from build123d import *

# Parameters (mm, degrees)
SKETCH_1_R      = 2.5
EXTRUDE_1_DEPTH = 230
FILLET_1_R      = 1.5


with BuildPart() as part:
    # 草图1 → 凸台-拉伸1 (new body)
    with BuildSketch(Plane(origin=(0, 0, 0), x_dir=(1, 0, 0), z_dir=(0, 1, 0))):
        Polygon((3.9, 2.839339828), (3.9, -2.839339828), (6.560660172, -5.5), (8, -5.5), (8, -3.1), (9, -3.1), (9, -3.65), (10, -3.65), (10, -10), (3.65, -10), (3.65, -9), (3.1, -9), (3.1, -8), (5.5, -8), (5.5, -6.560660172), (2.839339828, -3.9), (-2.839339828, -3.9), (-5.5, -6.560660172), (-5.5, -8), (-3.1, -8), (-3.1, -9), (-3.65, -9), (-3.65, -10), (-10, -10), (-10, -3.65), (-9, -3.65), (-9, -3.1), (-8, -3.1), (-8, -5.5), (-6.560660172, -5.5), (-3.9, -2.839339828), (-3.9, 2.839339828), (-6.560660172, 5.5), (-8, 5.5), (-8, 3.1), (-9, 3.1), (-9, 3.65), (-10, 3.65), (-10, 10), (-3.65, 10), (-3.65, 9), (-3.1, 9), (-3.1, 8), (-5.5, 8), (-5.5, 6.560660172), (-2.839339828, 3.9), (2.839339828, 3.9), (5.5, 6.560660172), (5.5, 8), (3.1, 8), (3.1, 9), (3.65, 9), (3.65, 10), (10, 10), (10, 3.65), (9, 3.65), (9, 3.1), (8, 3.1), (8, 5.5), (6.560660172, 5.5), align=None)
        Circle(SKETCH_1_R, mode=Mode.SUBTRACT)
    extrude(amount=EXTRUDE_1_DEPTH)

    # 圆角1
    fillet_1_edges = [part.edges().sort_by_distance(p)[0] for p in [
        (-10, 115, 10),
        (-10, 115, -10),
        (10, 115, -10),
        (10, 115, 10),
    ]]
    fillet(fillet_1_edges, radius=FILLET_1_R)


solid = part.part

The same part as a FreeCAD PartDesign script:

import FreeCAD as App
import Part
import Sketcher

V = App.Vector


def edges_at(feature, points):
    """Names of the edges that pass closest to the given points."""
    edges = feature.Shape.Edges
    near = lambda p: min(range(len(edges)), key=lambda i: edges[i].distToShape(Part.Vertex(*p))[0])
    return sorted({f"Edge{near(p) + 1}" for p in points})

doc = App.newDocument("Part")
body = doc.addObject("PartDesign::Body", "Body")

# Sketch on XZ plane
sketch1 = body.newObject("Sketcher::SketchObject", "Sketch")
sketch1.AttachmentSupport = (doc.getObject("XZ_Plane"), [""])
sketch1.MapMode = "FlatFace"
sketch1.addGeometry([
    Part.LineSegment(V(3.9, 2.83934, 0), V(3.9, -2.83934, 0)),  # 0
    Part.LineSegment(V(3.9, -2.83934, 0), V(6.56066, -5.5, 0)),  # 1
    Part.LineSegment(V(6.56066, -5.5, 0), V(8, -5.5, 0)),  # 2
    Part.LineSegment(V(8, -5.5, 0), V(8, -3.1, 0)),  # 3
    Part.LineSegment(V(8, -3.1, 0), V(9, -3.1, 0)),  # 4
    Part.LineSegment(V(9, -3.1, 0), V(9, -3.65, 0)),  # 5
    Part.LineSegment(V(9, -3.65, 0), V(10, -3.65, 0)),  # 6
    Part.LineSegment(V(10, -3.65, 0), V(10, -10, 0)),  # 7
    Part.LineSegment(V(10, -10, 0), V(3.65, -10, 0)),  # 8
    Part.LineSegment(V(3.65, -10, 0), V(3.65, -9, 0)),  # 9
    Part.LineSegment(V(3.65, -9, 0), V(3.1, -9, 0)),  # 10
    Part.LineSegment(V(3.1, -9, 0), V(3.1, -8, 0)),  # 11
    Part.LineSegment(V(3.1, -8, 0), V(5.5, -8, 0)),  # 12
    Part.LineSegment(V(5.5, -8, 0), V(5.5, -6.56066, 0)),  # 13
    Part.LineSegment(V(5.5, -6.56066, 0), V(2.83934, -3.9, 0)),  # 14
    Part.LineSegment(V(2.83934, -3.9, 0), V(-2.83934, -3.9, 0)),  # 15
    Part.LineSegment(V(-2.83934, -3.9, 0), V(-5.5, -6.56066, 0)),  # 16
    Part.LineSegment(V(-5.5, -6.56066, 0), V(-5.5, -8, 0)),  # 17
    Part.LineSegment(V(-5.5, -8, 0), V(-3.1, -8, 0)),  # 18
    Part.LineSegment(V(-3.1, -8, 0), V(-3.1, -9, 0)),  # 19
    Part.LineSegment(V(-3.1, -9, 0), V(-3.65, -9, 0)),  # 20
    Part.LineSegment(V(-3.65, -9, 0), V(-3.65, -10, 0)),  # 21
    Part.LineSegment(V(-3.65, -10, 0), V(-10, -10, 0)),  # 22
    Part.LineSegment(V(-10, -10, 0), V(-10, -3.65, 0)),  # 23
    Part.LineSegment(V(-10, -3.65, 0), V(-9, -3.65, 0)),  # 24
    Part.LineSegment(V(-9, -3.65, 0), V(-9, -3.1, 0)),  # 25
    Part.LineSegment(V(-9, -3.1, 0), V(-8, -3.1, 0)),  # 26
    Part.LineSegment(V(-8, -3.1, 0), V(-8, -5.5, 0)),  # 27
    Part.LineSegment(V(-8, -5.5, 0), V(-6.56066, -5.5, 0)),  # 28
    Part.LineSegment(V(-6.56066, -5.5, 0), V(-3.9, -2.83934, 0)),  # 29
    Part.LineSegment(V(-3.9, -2.83934, 0), V(-3.9, 2.83934, 0)),  # 30
    Part.LineSegment(V(-3.9, 2.83934, 0), V(-6.56066, 5.5, 0)),  # 31
    Part.LineSegment(V(-6.56066, 5.5, 0), V(-8, 5.5, 0)),  # 32
    Part.LineSegment(V(-8, 5.5, 0), V(-8, 3.1, 0)),  # 33
    Part.LineSegment(V(-8, 3.1, 0), V(-9, 3.1, 0)),  # 34
    Part.LineSegment(V(-9, 3.1, 0), V(-9, 3.65, 0)),  # 35
    Part.LineSegment(V(-9, 3.65, 0), V(-10, 3.65, 0)),  # 36
    Part.LineSegment(V(-10, 3.65, 0), V(-10, 10, 0)),  # 37
    Part.LineSegment(V(-10, 10, 0), V(-3.65, 10, 0)),  # 38
    Part.LineSegment(V(-3.65, 10, 0), V(-3.65, 9, 0)),  # 39
    Part.LineSegment(V(-3.65, 9, 0), V(-3.1, 9, 0)),  # 40
    Part.LineSegment(V(-3.1, 9, 0), V(-3.1, 8, 0)),  # 41
    Part.LineSegment(V(-3.1, 8, 0), V(-5.5, 8, 0)),  # 42
    Part.LineSegment(V(-5.5, 8, 0), V(-5.5, 6.56066, 0)),  # 43
    Part.LineSegment(V(-5.5, 6.56066, 0), V(-2.83934, 3.9, 0)),  # 44
    Part.LineSegment(V(-2.83934, 3.9, 0), V(2.83934, 3.9, 0)),  # 45
    Part.LineSegment(V(2.83934, 3.9, 0), V(5.5, 6.56066, 0)),  # 46
    Part.LineSegment(V(5.5, 6.56066, 0), V(5.5, 8, 0)),  # 47
    Part.LineSegment(V(5.5, 8, 0), V(3.1, 8, 0)),  # 48
    Part.LineSegment(V(3.1, 8, 0), V(3.1, 9, 0)),  # 49
    Part.LineSegment(V(3.1, 9, 0), V(3.65, 9, 0)),  # 50
    Part.LineSegment(V(3.65, 9, 0), V(3.65, 10, 0)),  # 51
    Part.LineSegment(V(3.65, 10, 0), V(10, 10, 0)),  # 52
    Part.LineSegment(V(10, 10, 0), V(10, 3.65, 0)),  # 53
    Part.LineSegment(V(10, 3.65, 0), V(9, 3.65, 0)),  # 54
    Part.LineSegment(V(9, 3.65, 0), V(9, 3.1, 0)),  # 55
    Part.LineSegment(V(9, 3.1, 0), V(8, 3.1, 0)),  # 56
    Part.LineSegment(V(8, 3.1, 0), V(8, 5.5, 0)),  # 57
    Part.LineSegment(V(8, 5.5, 0), V(6.56066, 5.5, 0)),  # 58
    Part.LineSegment(V(6.56066, 5.5, 0), V(3.9, 2.83934, 0)),  # 59
    Part.Circle(V(0, 0, 0), V(0, 0, 1), 2.5),  # 60
], False)
sketch1.addConstraint([
    Sketcher.Constraint("Coincident", 0, 2, 1, 1),
    Sketcher.Constraint("Coincident", 1, 2, 2, 1),
    Sketcher.Constraint("Coincident", 2, 2, 3, 1),
    Sketcher.Constraint("Coincident", 3, 2, 4, 1),
    Sketcher.Constraint("Coincident", 4, 2, 5, 1),
    Sketcher.Constraint("Coincident", 5, 2, 6, 1),
    Sketcher.Constraint("Coincident", 6, 2, 7, 1),
    Sketcher.Constraint("Coincident", 7, 2, 8, 1),
    Sketcher.Constraint("Coincident", 8, 2, 9, 1),
    Sketcher.Constraint("Coincident", 9, 2, 10, 1),
    Sketcher.Constraint("Coincident", 10, 2, 11, 1),
    Sketcher.Constraint("Coincident", 11, 2, 12, 1),
    Sketcher.Constraint("Coincident", 12, 2, 13, 1),
    Sketcher.Constraint("Coincident", 13, 2, 14, 1),
    Sketcher.Constraint("Coincident", 14, 2, 15, 1),
    Sketcher.Constraint("Coincident", 15, 2, 16, 1),
    Sketcher.Constraint("Coincident", 16, 2, 17, 1),
    Sketcher.Constraint("Coincident", 17, 2, 18, 1),
    Sketcher.Constraint("Coincident", 18, 2, 19, 1),
    Sketcher.Constraint("Coincident", 19, 2, 20, 1),
    Sketcher.Constraint("Coincident", 20, 2, 21, 1),
    Sketcher.Constraint("Coincident", 21, 2, 22, 1),
    Sketcher.Constraint("Coincident", 22, 2, 23, 1),
    Sketcher.Constraint("Coincident", 23, 2, 24, 1),
    Sketcher.Constraint("Coincident", 24, 2, 25, 1),
    Sketcher.Constraint("Coincident", 25, 2, 26, 1),
    Sketcher.Constraint("Coincident", 26, 2, 27, 1),
    Sketcher.Constraint("Coincident", 27, 2, 28, 1),
    Sketcher.Constraint("Coincident", 28, 2, 29, 1),
    Sketcher.Constraint("Coincident", 29, 2, 30, 1),
    Sketcher.Constraint("Coincident", 30, 2, 31, 1),
    Sketcher.Constraint("Coincident", 31, 2, 32, 1),
    Sketcher.Constraint("Coincident", 32, 2, 33, 1),
    Sketcher.Constraint("Coincident", 33, 2, 34, 1),
    Sketcher.Constraint("Coincident", 34, 2, 35, 1),
    Sketcher.Constraint("Coincident", 35, 2, 36, 1),
    Sketcher.Constraint("Coincident", 36, 2, 37, 1),
    Sketcher.Constraint("Coincident", 37, 2, 38, 1),
    Sketcher.Constraint("Coincident", 38, 2, 39, 1),
    Sketcher.Constraint("Coincident", 39, 2, 40, 1),
    Sketcher.Constraint("Coincident", 40, 2, 41, 1),
    Sketcher.Constraint("Coincident", 41, 2, 42, 1),
    Sketcher.Constraint("Coincident", 42, 2, 43, 1),
    Sketcher.Constraint("Coincident", 43, 2, 44, 1),
    Sketcher.Constraint("Coincident", 44, 2, 45, 1),
    Sketcher.Constraint("Coincident", 45, 2, 46, 1),
    Sketcher.Constraint("Coincident", 46, 2, 47, 1),
    Sketcher.Constraint("Coincident", 47, 2, 48, 1),
    Sketcher.Constraint("Coincident", 48, 2, 49, 1),
    Sketcher.Constraint("Coincident", 49, 2, 50, 1),
    Sketcher.Constraint("Coincident", 50, 2, 51, 1),
    Sketcher.Constraint("Coincident", 51, 2, 52, 1),
    Sketcher.Constraint("Coincident", 52, 2, 53, 1),
    Sketcher.Constraint("Coincident", 53, 2, 54, 1),
    Sketcher.Constraint("Coincident", 54, 2, 55, 1),
    Sketcher.Constraint("Coincident", 55, 2, 56, 1),
    Sketcher.Constraint("Coincident", 56, 2, 57, 1),
    Sketcher.Constraint("Coincident", 57, 2, 58, 1),
    Sketcher.Constraint("Coincident", 58, 2, 59, 1),
    Sketcher.Constraint("Coincident", 59, 2, 0, 1),
    Sketcher.Constraint("Vertical", 0),
    Sketcher.Constraint("Horizontal", 2),
    Sketcher.Constraint("Vertical", 3),
    Sketcher.Constraint("Horizontal", 4),
    Sketcher.Constraint("Vertical", 5),
    Sketcher.Constraint("Horizontal", 6),
    Sketcher.Constraint("Vertical", 7),
    Sketcher.Constraint("Horizontal", 8),
    Sketcher.Constraint("Vertical", 9),
    Sketcher.Constraint("Horizontal", 10),
    Sketcher.Constraint("Vertical", 11),
    Sketcher.Constraint("Horizontal", 12),
    Sketcher.Constraint("Vertical", 13),
    Sketcher.Constraint("Horizontal", 15),
    Sketcher.Constraint("Vertical", 17),
    Sketcher.Constraint("Horizontal", 18),
    Sketcher.Constraint("Vertical", 19),
    Sketcher.Constraint("Horizontal", 20),
    Sketcher.Constraint("Vertical", 21),
    Sketcher.Constraint("Horizontal", 22),
    Sketcher.Constraint("Vertical", 23),
    Sketcher.Constraint("Horizontal", 24),
    Sketcher.Constraint("Vertical", 25),
    Sketcher.Constraint("Horizontal", 26),
    Sketcher.Constraint("Vertical", 27),
    Sketcher.Constraint("Horizontal", 28),
    Sketcher.Constraint("Vertical", 30),
    Sketcher.Constraint("Horizontal", 32),
    Sketcher.Constraint("Vertical", 33),
    Sketcher.Constraint("Horizontal", 34),
    Sketcher.Constraint("Vertical", 35),
    Sketcher.Constraint("Horizontal", 36),
    Sketcher.Constraint("Vertical", 37),
    Sketcher.Constraint("Horizontal", 38),
    Sketcher.Constraint("Vertical", 39),
    Sketcher.Constraint("Horizontal", 40),
    Sketcher.Constraint("Vertical", 41),
    Sketcher.Constraint("Horizontal", 42),
    Sketcher.Constraint("Vertical", 43),
    Sketcher.Constraint("Horizontal", 45),
    Sketcher.Constraint("Vertical", 47),
    Sketcher.Constraint("Horizontal", 48),
    Sketcher.Constraint("Vertical", 49),
    Sketcher.Constraint("Horizontal", 50),
    Sketcher.Constraint("Vertical", 51),
    Sketcher.Constraint("Horizontal", 52),
    Sketcher.Constraint("Vertical", 53),
    Sketcher.Constraint("Horizontal", 54),
    Sketcher.Constraint("Vertical", 55),
    Sketcher.Constraint("Horizontal", 56),
    Sketcher.Constraint("Vertical", 57),
    Sketcher.Constraint("Horizontal", 58),
    Sketcher.Constraint("Coincident", 60, 3, -1, 1),
    Sketcher.Constraint("Symmetric", 0, 2, 30, 2, -1, 1),
    Sketcher.Constraint("Symmetric", 1, 2, 31, 2, -1, 1),
    Sketcher.Constraint("Symmetric", 3, 2, 33, 2, -1, 1),
    Sketcher.Constraint("Symmetric", 5, 2, 35, 2, -1, 1),
    Sketcher.Constraint("Symmetric", 7, 2, 37, 2, -1, 1),
    Sketcher.Constraint("Symmetric", 9, 2, 39, 2, -1, 1),
    Sketcher.Constraint("Symmetric", 11, 2, 41, 2, -1, 1),
    Sketcher.Constraint("Symmetric", 13, 2, 43, 2, -1, 1),
    Sketcher.Constraint("Symmetric", 14, 2, 44, 2, -1, 1),
    Sketcher.Constraint("Symmetric", 16, 2, 46, 2, -1, 1),
    Sketcher.Constraint("Symmetric", 18, 2, 48, 2, -1, 1),
    Sketcher.Constraint("Symmetric", 20, 2, 50, 2, -1, 1),
    Sketcher.Constraint("Symmetric", 22, 2, 52, 2, -1, 1),
    Sketcher.Constraint("Symmetric", 24, 2, 54, 2, -1, 1),
    Sketcher.Constraint("Symmetric", 26, 2, 56, 2, -1, 1),
    Sketcher.Constraint("Symmetric", 28, 2, 58, 2, -1, 1),
    Sketcher.Constraint("Symmetric", 13, 2, 16, 2, -2),
    Sketcher.Constraint("Symmetric", 11, 2, 18, 2, -2),
    Sketcher.Constraint("Symmetric", 9, 2, 20, 2, -2),
    Sketcher.Constraint("Symmetric", 7, 2, 22, 2, -2),
    Sketcher.Constraint("Symmetric", 5, 2, 24, 2, -2),
    Sketcher.Constraint("Symmetric", 3, 2, 26, 2, -2),
    Sketcher.Constraint("Symmetric", 1, 2, 28, 2, -2),
    Sketcher.Constraint("Parallel", 1, 14),
    Sketcher.Constraint("Perpendicular", 14, 16),
    Sketcher.Constraint("Parallel", 16, 29),
    Sketcher.Constraint("Perpendicular", 44, 46),
    Sketcher.Constraint("Parallel", 46, 59),
    Sketcher.Constraint("Horizontal", 0, 2, 29, 2),
    Sketcher.Constraint("Equal", 4, 6),
    Sketcher.Constraint("Equal", 45, 0),
    Sketcher.Constraint("Equal", 48, 3),
    Sketcher.Constraint("Equal", 50, 5),
    Sketcher.Constraint("Equal", 52, 7),
    Sketcher.Constraint("Equal", 56, 9),
    Sketcher.Constraint("Equal", 9, 11),
    Sketcher.Constraint("Equal", 58, 13),
    Sketcher.Constraint("Equal", 1, 14),
    Sketcher.Constraint("Diameter", 60, 5.0),
    Sketcher.Constraint("DistanceX", 4, 1, 4, 2, 1.0),
    Sketcher.Constraint("DistanceX", 12, 1, 12, 2, 2.4),
    Sketcher.Constraint("DistanceX", -1, 1, 2, 2, 8.0),
    Sketcher.Constraint("DistanceX", 8, 2, 8, 1, 6.35),
    Sketcher.Constraint("DistanceX", 10, 2, 10, 1, 0.55),
    Sketcher.Constraint("DistanceX", -1, 1, 0, 2, 3.9),
    Sketcher.Constraint("DistanceX", 2, 1, 2, 2, 1.43934),
])
pad1 = body.newObject("PartDesign::Pad", "Pad")
pad1.Profile = sketch1
pad1.Length = 230
pad1.Reversed = True
doc.recompute()

fillet = body.newObject("PartDesign::Fillet", "Fillet")
fillet.Base = (pad1, edges_at(pad1, [
    (-10, 115, 10),
    (-10, 115, -10),
    (10, 115, -10),
    (10, 115, 10),
]))
fillet.Radius = 1.5

doc.recompute()
